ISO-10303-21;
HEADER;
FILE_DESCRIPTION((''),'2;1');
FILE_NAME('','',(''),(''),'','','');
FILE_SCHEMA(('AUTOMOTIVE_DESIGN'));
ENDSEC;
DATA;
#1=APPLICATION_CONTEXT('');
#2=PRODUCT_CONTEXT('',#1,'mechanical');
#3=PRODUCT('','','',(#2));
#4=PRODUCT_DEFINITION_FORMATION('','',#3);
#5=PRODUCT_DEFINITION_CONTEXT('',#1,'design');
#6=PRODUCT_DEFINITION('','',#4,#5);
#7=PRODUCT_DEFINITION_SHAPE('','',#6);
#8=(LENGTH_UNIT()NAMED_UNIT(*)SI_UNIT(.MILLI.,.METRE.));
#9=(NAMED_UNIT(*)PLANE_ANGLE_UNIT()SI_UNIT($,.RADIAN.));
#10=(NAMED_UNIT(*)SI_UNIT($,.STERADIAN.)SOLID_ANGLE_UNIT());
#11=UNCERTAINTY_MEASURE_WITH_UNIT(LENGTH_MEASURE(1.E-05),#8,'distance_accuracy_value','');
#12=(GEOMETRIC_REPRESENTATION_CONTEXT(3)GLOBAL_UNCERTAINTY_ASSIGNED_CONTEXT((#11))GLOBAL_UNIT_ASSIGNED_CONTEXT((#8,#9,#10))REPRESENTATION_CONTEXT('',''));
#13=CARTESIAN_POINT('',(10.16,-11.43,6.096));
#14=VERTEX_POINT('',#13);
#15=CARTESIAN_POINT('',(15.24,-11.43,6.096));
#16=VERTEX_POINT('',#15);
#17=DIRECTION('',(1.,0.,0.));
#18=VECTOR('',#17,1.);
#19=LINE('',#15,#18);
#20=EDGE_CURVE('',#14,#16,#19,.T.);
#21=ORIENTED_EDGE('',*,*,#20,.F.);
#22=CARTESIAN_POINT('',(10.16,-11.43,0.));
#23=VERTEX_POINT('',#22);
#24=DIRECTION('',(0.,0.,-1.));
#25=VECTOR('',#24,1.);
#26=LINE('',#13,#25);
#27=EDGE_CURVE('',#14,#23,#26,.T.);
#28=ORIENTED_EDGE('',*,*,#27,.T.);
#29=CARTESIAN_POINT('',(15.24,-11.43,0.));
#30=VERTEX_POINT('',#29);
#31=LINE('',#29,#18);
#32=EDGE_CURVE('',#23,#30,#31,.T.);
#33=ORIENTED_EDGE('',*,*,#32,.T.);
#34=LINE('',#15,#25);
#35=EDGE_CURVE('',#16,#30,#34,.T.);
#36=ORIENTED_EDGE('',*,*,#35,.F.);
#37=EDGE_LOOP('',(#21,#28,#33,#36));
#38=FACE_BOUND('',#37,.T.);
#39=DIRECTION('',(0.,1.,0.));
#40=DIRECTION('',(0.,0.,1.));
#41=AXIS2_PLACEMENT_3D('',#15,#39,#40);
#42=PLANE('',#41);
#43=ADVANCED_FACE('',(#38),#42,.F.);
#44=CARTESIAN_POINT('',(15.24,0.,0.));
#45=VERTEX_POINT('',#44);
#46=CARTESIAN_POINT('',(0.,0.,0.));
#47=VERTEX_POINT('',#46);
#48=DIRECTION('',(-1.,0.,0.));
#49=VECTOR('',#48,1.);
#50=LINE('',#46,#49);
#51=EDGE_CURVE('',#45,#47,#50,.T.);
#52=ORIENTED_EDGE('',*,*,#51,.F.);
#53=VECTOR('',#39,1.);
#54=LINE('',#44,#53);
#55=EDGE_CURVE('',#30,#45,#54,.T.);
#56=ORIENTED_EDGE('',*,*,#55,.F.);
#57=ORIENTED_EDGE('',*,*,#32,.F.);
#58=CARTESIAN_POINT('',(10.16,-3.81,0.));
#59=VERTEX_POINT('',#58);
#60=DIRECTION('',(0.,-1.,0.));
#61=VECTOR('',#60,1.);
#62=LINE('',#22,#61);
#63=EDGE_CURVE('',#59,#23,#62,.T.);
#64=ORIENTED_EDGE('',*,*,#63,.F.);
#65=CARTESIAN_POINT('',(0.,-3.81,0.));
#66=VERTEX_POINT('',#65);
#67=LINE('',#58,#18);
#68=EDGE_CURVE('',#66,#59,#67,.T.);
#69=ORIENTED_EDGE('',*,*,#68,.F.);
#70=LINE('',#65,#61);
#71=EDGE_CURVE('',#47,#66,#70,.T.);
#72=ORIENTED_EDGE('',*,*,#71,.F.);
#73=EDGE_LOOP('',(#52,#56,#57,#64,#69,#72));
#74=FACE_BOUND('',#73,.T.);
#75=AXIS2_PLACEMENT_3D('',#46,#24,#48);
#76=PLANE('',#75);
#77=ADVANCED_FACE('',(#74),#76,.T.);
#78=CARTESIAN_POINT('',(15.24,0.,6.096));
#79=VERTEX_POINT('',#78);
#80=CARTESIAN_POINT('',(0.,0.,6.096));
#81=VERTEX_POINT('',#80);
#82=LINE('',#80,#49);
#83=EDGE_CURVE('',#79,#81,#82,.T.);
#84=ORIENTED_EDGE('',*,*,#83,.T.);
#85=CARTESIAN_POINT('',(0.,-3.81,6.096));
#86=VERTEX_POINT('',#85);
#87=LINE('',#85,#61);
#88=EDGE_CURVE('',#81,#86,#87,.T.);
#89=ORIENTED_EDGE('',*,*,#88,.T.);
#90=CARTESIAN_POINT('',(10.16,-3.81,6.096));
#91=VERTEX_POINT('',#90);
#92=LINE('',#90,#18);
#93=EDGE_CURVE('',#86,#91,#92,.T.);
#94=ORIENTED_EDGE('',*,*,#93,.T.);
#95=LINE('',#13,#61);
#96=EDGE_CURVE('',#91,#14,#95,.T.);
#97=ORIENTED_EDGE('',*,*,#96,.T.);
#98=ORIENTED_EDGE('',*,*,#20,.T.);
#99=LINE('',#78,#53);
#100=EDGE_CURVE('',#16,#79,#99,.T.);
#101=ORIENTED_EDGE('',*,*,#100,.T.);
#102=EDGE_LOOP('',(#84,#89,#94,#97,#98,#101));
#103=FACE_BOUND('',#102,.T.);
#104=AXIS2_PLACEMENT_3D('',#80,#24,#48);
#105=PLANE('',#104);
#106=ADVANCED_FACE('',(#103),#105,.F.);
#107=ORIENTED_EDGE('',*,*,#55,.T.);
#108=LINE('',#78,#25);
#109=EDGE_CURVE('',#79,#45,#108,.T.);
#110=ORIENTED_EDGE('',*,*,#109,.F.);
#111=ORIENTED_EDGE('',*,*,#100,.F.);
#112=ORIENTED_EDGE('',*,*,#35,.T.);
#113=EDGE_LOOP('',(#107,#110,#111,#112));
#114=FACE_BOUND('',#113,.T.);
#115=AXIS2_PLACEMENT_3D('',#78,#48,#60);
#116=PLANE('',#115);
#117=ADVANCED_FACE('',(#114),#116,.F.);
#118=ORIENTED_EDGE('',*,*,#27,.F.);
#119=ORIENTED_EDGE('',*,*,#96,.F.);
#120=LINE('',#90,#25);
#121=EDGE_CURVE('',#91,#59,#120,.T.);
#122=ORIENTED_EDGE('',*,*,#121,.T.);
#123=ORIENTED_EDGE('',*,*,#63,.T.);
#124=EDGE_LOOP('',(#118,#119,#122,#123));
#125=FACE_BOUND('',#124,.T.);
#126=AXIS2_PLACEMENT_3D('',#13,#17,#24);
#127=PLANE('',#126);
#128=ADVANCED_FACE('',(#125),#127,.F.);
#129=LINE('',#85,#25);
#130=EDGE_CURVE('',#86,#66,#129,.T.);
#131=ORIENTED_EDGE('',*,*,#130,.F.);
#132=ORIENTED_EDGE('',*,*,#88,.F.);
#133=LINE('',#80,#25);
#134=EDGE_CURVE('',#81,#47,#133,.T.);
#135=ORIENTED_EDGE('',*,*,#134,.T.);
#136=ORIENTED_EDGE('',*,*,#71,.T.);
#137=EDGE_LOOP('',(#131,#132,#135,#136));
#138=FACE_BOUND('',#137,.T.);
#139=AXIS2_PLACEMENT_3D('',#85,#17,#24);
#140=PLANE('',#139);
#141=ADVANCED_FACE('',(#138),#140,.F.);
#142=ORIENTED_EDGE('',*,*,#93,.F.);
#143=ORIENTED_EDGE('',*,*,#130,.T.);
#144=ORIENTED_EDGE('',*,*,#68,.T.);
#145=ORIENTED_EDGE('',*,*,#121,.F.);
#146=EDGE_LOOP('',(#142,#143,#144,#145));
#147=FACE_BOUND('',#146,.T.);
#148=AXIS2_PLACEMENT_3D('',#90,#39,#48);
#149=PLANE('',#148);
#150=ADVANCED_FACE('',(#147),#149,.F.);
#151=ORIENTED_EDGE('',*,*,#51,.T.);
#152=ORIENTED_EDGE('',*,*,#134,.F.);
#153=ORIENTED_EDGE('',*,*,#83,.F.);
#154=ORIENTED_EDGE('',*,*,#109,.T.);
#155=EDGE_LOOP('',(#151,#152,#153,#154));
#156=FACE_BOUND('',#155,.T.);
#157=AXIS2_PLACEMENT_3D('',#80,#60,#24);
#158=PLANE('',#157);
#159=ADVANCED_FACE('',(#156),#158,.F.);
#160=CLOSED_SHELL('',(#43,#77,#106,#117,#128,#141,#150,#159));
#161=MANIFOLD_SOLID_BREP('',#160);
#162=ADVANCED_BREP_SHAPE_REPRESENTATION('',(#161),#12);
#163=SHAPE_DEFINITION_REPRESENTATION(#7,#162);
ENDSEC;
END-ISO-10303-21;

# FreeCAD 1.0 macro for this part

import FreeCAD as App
import Part
import Sketcher

V = App.Vector
Q = App.Units.Quantity


def add_polygon(sketch, points):
    """Adds a closed chain of lines whose ends are joined by coincident constraints."""
    first, n = sketch.GeometryCount, len(points)
    for a, b in zip(points, points[1:] + points[:1]):
        sketch.addGeometry(Part.LineSegment(App.Vector(*a, 0), App.Vector(*b, 0)), False)
    for i in range(n):
        sketch.addConstraint(Sketcher.Constraint("Coincident", first + i, 2, first + (i + 1) % n, 1))

doc = App.newDocument("Part")
params = doc.addObject("Spreadsheet::Sheet", "Params")
for row, (alias, value) in enumerate([
    ("sketch1_width", "0.6 in"),
    ("sketch1_width2", "0.4 in"),
    ("sketch1_height", "0.3 in"),
    ("sketch1_height2", "0.15 in"),
    ("pad1_length", "0.24 in"),
], start=1):
    params.set(f"A{row}", alias)
    params.set(f"B{row}", "=" + value)
    params.setAlias(f"B{row}", alias)

body = doc.addObject("PartDesign::Body", "Body")

sketch1 = doc.addObject("Sketcher::SketchObject", "Sketch")
body.addObject(sketch1)
sketch1.AttachmentSupport = (doc.XY_Plane, [""])
sketch1.MapMode = "FlatFace"
add_polygon(sketch1, [(15.24, 0), (0, 0), (0, -3.81), (10.16, -3.81), (10.16, -11.43), (15.24, -11.43)])
sketch1.addConstraint(Sketcher.Constraint("Horizontal", 0))
sketch1.addConstraint(Sketcher.Constraint("Vertical", 1))
sketch1.addConstraint(Sketcher.Constraint("Horizontal", 2))
sketch1.addConstraint(Sketcher.Constraint("Vertical", 3))
sketch1.addConstraint(Sketcher.Constraint("Horizontal", 4))
sketch1.addConstraint(Sketcher.Constraint("Vertical", 5))
sketch1.addConstraint(Sketcher.Constraint("Coincident", 0, 2, -1, 1))
sketch1.addConstraint(Sketcher.Constraint("DistanceX", 0, 2, 0, 1, Q("0.6 in")))
sketch1.addConstraint(Sketcher.Constraint("DistanceX", 2, 1, 2, 2, Q("0.4 in")))
sketch1.addConstraint(Sketcher.Constraint("DistanceY", 3, 2, 3, 1, Q("0.3 in")))
sketch1.addConstraint(Sketcher.Constraint("DistanceY", 1, 2, 1, 1, Q("0.15 in")))
sketch1.setExpression("Constraints[13]", "Params.sketch1_width")
sketch1.setExpression("Constraints[14]", "Params.sketch1_width2")
sketch1.setExpression("Constraints[15]", "Params.sketch1_height")
sketch1.setExpression("Constraints[16]", "Params.sketch1_height2")
pad1 = doc.addObject("PartDesign::Pad", "Pad")
body.addObject(pad1)
pad1.Profile = sketch1
pad1.setExpression("Length", "Params.pad1_length")

doc.recompute()
